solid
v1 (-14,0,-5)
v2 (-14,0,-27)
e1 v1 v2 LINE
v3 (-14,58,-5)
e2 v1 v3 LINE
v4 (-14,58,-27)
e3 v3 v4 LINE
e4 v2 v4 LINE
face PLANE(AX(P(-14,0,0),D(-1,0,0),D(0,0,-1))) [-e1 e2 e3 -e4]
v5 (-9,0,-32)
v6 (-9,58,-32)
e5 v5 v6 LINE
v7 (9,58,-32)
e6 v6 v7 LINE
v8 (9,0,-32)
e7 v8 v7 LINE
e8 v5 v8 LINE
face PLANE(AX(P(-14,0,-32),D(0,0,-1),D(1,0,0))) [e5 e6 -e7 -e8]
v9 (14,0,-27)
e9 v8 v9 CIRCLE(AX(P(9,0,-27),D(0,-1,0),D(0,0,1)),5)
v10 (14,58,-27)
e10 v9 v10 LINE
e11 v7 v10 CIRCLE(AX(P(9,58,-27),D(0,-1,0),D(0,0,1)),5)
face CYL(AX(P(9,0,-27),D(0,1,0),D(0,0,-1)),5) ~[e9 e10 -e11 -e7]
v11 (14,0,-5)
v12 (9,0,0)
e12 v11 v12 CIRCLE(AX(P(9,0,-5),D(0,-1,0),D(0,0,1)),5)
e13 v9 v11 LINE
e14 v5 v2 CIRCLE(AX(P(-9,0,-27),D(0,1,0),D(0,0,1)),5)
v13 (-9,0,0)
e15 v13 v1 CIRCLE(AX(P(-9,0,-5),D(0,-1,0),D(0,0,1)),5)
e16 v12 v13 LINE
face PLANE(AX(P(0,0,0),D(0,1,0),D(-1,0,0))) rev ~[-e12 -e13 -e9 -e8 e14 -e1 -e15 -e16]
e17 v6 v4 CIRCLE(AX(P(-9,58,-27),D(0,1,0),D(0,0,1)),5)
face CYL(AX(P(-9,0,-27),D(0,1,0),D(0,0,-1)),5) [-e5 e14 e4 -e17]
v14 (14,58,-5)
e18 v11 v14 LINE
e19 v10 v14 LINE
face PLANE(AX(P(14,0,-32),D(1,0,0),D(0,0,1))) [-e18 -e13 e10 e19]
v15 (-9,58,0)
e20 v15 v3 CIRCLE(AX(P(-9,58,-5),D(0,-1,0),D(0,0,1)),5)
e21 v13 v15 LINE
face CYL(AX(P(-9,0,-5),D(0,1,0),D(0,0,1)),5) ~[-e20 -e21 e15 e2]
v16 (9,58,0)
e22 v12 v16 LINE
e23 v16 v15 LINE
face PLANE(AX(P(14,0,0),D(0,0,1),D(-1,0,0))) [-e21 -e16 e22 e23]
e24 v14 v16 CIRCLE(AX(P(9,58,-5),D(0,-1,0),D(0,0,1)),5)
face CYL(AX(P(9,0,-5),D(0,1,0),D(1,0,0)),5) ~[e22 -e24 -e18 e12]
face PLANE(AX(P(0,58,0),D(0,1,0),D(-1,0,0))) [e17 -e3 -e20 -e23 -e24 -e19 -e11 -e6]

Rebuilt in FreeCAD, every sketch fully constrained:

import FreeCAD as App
import Part
import Sketcher

V = App.Vector
Q = App.Units.Quantity


def edges_at(feature, points):
    """Names of the edges that pass closest to the given points."""
    edges = feature.Shape.Edges
    near = lambda p: min(range(len(edges)), key=lambda i: edges[i].distToShape(Part.Vertex(*p))[0])
    return sorted({f"Edge{near(p) + 1}" for p in points})


def add_polygon(sketch, points):
    """Adds a closed chain of lines whose ends are joined by coincident constraints."""
    first, n = sketch.GeometryCount, len(points)
    for a, b in zip(points, points[1:] + points[:1]):
        sketch.addGeometry(Part.LineSegment(App.Vector(*a, 0), App.Vector(*b, 0)), False)
    for i in range(n):
        sketch.addConstraint(Sketcher.Constraint("Coincident", first + i, 2, first + (i + 1) % n, 1))

doc = App.newDocument("Part")
params = doc.addObject("Spreadsheet::Sheet", "Params")
for row, (alias, value) in enumerate([
    ("sketch1_width", "28 mm"),
    ("sketch1_height", "32 mm"),
    ("pad1_length", "58 mm"),
    ("fillet_radius", "5 mm"),
], start=1):
    params.set(f"A{row}", alias)
    params.set(f"B{row}", "=" + value)
    params.setAlias(f"B{row}", alias)

body = doc.addObject("PartDesign::Body", "Body")

sketch1 = body.newObject("Sketcher::SketchObject", "Sketch")
sketch1.AttachmentSupport = (doc.getObject("XZ_Plane"), [""])
sketch1.MapMode = "FlatFace"
add_polygon(sketch1, [(14, -32), (-14, -32), (-14, 0), (14, 0)])
sketch1.addConstraint([
    Sketcher.Constraint("Horizontal", 0),
    Sketcher.Constraint("Vertical", 1),
    Sketcher.Constraint("Horizontal", 2),
    Sketcher.Constraint("Vertical", 3),
    Sketcher.Constraint("Symmetric", 1, 2, 2, 2, -1, 1),
    Sketcher.Constraint("DistanceX", 0, 2, 0, 1, Q("28 mm")),
    Sketcher.Constraint("DistanceY", 1, 1, 1, 2, Q("32 mm")),
])
sketch1.setExpression("Constraints[9]", "Params.sketch1_width")
sketch1.setExpression("Constraints[10]", "Params.sketch1_height")
pad1 = body.newObject("PartDesign::Pad", "Pad")
pad1.Profile = sketch1
pad1.setExpression("Length", "Params.pad1_length")
pad1.Reversed = True
doc.recompute()

fillet = body.newObject("PartDesign::Fillet", "Fillet")
fillet.Base = (pad1, edges_at(pad1, [
    (14, 29, 0),
    (-14, 29, 0),
    (14, 29, -32),
    (-14, 29, -32),
]))
fillet.setExpression("Radius", "Params.fillet_radius")

doc.recompute()
